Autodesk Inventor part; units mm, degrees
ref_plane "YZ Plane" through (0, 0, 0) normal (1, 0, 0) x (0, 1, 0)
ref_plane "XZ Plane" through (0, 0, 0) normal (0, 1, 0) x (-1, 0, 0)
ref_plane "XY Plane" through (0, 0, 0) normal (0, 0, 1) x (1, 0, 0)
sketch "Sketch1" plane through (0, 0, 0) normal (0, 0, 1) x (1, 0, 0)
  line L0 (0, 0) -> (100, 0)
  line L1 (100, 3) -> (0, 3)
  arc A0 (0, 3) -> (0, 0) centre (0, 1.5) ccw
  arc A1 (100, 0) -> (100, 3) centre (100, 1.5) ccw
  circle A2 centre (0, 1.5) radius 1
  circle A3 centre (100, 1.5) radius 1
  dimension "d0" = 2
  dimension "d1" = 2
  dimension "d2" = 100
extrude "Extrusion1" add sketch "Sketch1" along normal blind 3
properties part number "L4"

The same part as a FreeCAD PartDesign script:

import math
import FreeCAD as App
import Part
import Sketcher

doc = App.newDocument("Part")
params = doc.addObject("Spreadsheet::Sheet", "Params")
for row, (alias, value) in enumerate([
    ("sketch1_diameter", "2 mm"),
    ("sketch1_width", "100 mm"),
    ("sketch1_radius", "1.5 mm"),
    ("pad1_length", "3 mm"),
], start=1):
    params.set(f"A{row}", alias)
    params.set(f"B{row}", "=" + value)
    params.setAlias(f"B{row}", alias)

body = doc.addObject("PartDesign::Body", "Body")

# Sketch on XY plane
sketch1 = doc.addObject("Sketcher::SketchObject", "Sketch")
body.addObject(sketch1)
sketch1.AttachmentSupport = (doc.XY_Plane, [""])
sketch1.MapMode = "FlatFace"
sketch1.addGeometry([
    Part.ArcOfCircle(Part.Circle(App.Vector(0, 1.5, 0), App.Vector(0, 0, 1), 1.5), math.radians(90), math.radians(270)),  # 0
    Part.LineSegment(App.Vector(0, 0, 0), App.Vector(100, 0, 0)),  # 1
    Part.ArcOfCircle(Part.Circle(App.Vector(100, 1.5, 0), App.Vector(0, 0, 1), 1.5), math.radians(-90), math.radians(90)),  # 2
    Part.LineSegment(App.Vector(100, 3, 0), App.Vector(0, 3, 0)),  # 3
    Part.Circle(App.Vector(0, 1.5, 0), App.Vector(0, 0, 1), 1),  # 4
    Part.Circle(App.Vector(100, 1.5, 0), App.Vector(0, 0, 1), 1),  # 5
], False)
sketch1.addConstraint([
    Sketcher.Constraint("Tangent", 0, 2, 1, 1),
    Sketcher.Constraint("Tangent", 1, 2, 2, 1),
    Sketcher.Constraint("Tangent", 2, 2, 3, 1),
    Sketcher.Constraint("Tangent", 3, 2, 0, 1),
    Sketcher.Constraint("Horizontal", 1),
    Sketcher.Constraint("Horizontal", 3),
    Sketcher.Constraint("Coincident", 0, 2, -1, 1),
    Sketcher.Constraint("Coincident", 4, 3, 0, 3),
    Sketcher.Constraint("Coincident", 5, 3, 2, 3),
    Sketcher.Constraint("Equal", 4, 5),
    Sketcher.Constraint("Diameter", 4, 2.0),
    Sketcher.Constraint("DistanceX", 1, 1, 1, 2, 100.0),
    Sketcher.Constraint("Radius", 0, 1.5),
])
sketch1.setExpression("Constraints[10]", "Params.sketch1_diameter")
sketch1.setExpression("Constraints[11]", "Params.sketch1_width")
sketch1.setExpression("Constraints[12]", "Params.sketch1_radius")
pad1 = doc.addObject("PartDesign::Pad", "Pad")
body.addObject(pad1)
pad1.Profile = sketch1
pad1.setExpression("Length", "Params.pad1_length")

doc.recompute()
